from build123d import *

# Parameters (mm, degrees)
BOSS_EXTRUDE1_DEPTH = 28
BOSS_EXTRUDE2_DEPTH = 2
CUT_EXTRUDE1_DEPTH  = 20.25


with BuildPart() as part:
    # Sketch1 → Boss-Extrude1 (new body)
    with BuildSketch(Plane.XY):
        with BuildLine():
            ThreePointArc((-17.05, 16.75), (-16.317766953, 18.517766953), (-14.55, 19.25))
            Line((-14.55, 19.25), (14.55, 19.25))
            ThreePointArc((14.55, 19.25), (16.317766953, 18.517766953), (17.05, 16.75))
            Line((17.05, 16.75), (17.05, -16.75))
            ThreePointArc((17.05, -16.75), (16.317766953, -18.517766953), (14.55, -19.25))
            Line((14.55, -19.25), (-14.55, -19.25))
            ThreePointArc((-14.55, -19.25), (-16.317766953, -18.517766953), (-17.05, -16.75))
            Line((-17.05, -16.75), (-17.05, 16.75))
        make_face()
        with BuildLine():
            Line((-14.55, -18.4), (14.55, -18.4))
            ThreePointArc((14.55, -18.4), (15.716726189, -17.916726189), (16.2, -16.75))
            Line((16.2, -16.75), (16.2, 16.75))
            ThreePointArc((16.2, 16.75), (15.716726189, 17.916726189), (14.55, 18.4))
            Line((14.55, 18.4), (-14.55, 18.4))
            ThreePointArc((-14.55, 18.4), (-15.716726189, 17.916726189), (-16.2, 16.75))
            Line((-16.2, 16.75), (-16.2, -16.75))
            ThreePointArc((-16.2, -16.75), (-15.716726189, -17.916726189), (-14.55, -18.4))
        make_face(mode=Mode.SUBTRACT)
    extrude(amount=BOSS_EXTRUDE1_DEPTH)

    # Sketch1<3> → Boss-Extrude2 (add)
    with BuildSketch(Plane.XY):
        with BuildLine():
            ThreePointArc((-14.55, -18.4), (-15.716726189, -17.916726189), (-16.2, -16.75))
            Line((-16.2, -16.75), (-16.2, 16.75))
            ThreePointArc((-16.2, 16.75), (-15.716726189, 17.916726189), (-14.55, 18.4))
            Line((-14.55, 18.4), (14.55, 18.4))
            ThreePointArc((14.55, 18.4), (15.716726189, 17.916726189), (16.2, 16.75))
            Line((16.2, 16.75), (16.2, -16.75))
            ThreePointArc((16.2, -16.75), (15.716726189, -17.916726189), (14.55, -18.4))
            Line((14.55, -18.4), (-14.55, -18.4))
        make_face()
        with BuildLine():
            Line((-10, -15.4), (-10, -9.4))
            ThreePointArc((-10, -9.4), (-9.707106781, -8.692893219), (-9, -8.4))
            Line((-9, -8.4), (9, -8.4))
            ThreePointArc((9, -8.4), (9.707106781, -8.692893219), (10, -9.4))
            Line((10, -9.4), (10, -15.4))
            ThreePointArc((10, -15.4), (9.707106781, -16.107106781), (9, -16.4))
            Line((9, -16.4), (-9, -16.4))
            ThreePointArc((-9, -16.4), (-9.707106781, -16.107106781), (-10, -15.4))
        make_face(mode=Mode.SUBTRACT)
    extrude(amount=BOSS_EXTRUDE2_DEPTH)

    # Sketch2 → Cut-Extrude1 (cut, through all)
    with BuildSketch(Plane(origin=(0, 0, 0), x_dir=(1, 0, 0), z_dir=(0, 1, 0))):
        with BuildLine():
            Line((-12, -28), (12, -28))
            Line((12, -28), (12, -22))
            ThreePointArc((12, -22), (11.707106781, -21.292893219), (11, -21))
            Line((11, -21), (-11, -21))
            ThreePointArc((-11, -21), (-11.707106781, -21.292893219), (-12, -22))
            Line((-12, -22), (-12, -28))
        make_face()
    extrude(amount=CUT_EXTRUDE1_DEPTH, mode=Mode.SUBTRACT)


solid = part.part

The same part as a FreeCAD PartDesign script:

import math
import FreeCAD as App
import Part
import Sketcher

V = App.Vector

doc = App.newDocument("Part")
params = doc.addObject("Spreadsheet::Sheet", "Params")
for row, (alias, value) in enumerate([
    ("sketch1_radius", "2.5 mm"),
    ("sketch1_radius2", "1.65 mm"),
    ("sketch1_width", "29.1 mm"),
    ("sketch1_height", "33.5 mm"),
    ("pad1_length", "28 mm"),
    ("sketch2_radius", "1 mm"),
    ("sketch2_width", "18 mm"),
    ("sketch2_height", "6 mm"),
    ("sketch2_radius2", "1.65 mm"),
    ("sketch2_width2", "29.1 mm"),
    ("pad2_length", "2 mm"),
    ("sketch3_radius", "1 mm"),
    ("sketch3_width", "24 mm"),
    ("sketch3_height", "6 mm"),
], start=1):
    params.set(f"A{row}", alias)
    params.set(f"B{row}", "=" + value)
    params.setAlias(f"B{row}", alias)

body = doc.addObject("PartDesign::Body", "Body")

sketch1 = body.newObject("Sketcher::SketchObject", "Sketch")
sketch1.AttachmentSupport = (doc.getObject("XY_Plane"), [""])
sketch1.MapMode = "FlatFace"
sketch1.addGeometry(Part.ArcOfCircle(Part.Circle(V(-14.6, 16.8, 0), V(0, 0, 1), 2.5), math.radians(90), math.radians(180)), False)
sketch1.addGeometry(Part.LineSegment(V(-17.1, 16.8, 0), V(-17.1, -16.8, 0)), False)
sketch1.addGeometry(Part.ArcOfCircle(Part.Circle(V(-14.6, -16.8, 0), V(0, 0, 1), 2.5), math.radians(180), math.radians(270)), False)
sketch1.addGeometry(Part.LineSegment(V(-14.6, -19.2, 0), V(14.6, -19.2, 0)), False)
sketch1.addGeometry(Part.ArcOfCircle(Part.Circle(V(14.6, -16.8, 0), V(0, 0, 1), 2.5), math.radians(-90), math.radians(0)), False)
sketch1.addGeometry(Part.LineSegment(V(17.1, -16.8, 0), V(17.1, 16.8, 0)), False)
sketch1.addGeometry(Part.ArcOfCircle(Part.Circle(V(14.6, 16.8, 0), V(0, 0, 1), 2.5), math.radians(0), math.radians(90)), False)
sketch1.addGeometry(Part.LineSegment(V(14.6, 19.2, 0), V(-14.6, 19.2, 0)), False)
sketch1.addGeometry(Part.ArcOfCircle(Part.Circle(V(-14.6, -16.8, 0), V(0, 0, 1), 1.6), math.radians(180), math.radians(270)), False)
sketch1.addGeometry(Part.LineSegment(V(-16.2, -16.8, 0), V(-16.2, 16.8, 0)), False)
sketch1.addGeometry(Part.ArcOfCircle(Part.Circle(V(-14.6, 16.8, 0), V(0, 0, 1), 1.6), math.radians(90), math.radians(180)), False)
sketch1.addGeometry(Part.LineSegment(V(-14.6, 18.4, 0), V(14.6, 18.4, 0)), False)
sketch1.addGeometry(Part.ArcOfCircle(Part.Circle(V(14.6, 16.8, 0), V(0, 0, 1), 1.6), math.radians(0), math.radians(90)), False)
sketch1.addGeometry(Part.LineSegment(V(16.2, 16.8, 0), V(16.2, -16.8, 0)), False)
sketch1.addGeometry(Part.ArcOfCircle(Part.Circle(V(14.6, -16.8, 0), V(0, 0, 1), 1.6), math.radians(-90), math.radians(0)), False)
sketch1.addGeometry(Part.LineSegment(V(14.6, -18.4, 0), V(-14.6, -18.4, 0)), False)
sketch1.addConstraint(Sketcher.Constraint("Tangent", 0, 2, 1, 1))
sketch1.addConstraint(Sketcher.Constraint("Tangent", 1, 2, 2, 1))
sketch1.addConstraint(Sketcher.Constraint("Tangent", 2, 2, 3, 1))
sketch1.addConstraint(Sketcher.Constraint("Tangent", 3, 2, 4, 1))
sketch1.addConstraint(Sketcher.Constraint("Tangent", 4, 2, 5, 1))
sketch1.addConstraint(Sketcher.Constraint("Tangent", 5, 2, 6, 1))
sketch1.addConstraint(Sketcher.Constraint("Tangent", 6, 2, 7, 1))
sketch1.addConstraint(Sketcher.Constraint("Tangent", 7, 2, 0, 1))
sketch1.addConstraint(Sketcher.Constraint("Tangent", 8, 1, 9, 1))
sketch1.addConstraint(Sketcher.Constraint("Tangent", 9, 2, 10, 2))
sketch1.addConstraint(Sketcher.Constraint("Tangent", 10, 1, 11, 1))
sketch1.addConstraint(Sketcher.Constraint("Tangent", 11, 2, 12, 2))
sketch1.addConstraint(Sketcher.Constraint("Tangent", 12, 1, 13, 1))
sketch1.addConstraint(Sketcher.Constraint("Tangent", 13, 2, 14, 2))
sketch1.addConstraint(Sketcher.Constraint("Tangent", 14, 1, 15, 1))
sketch1.addConstraint(Sketcher.Constraint("Tangent", 15, 2, 8, 2))
sketch1.addConstraint(Sketcher.Constraint("Vertical", 1))
sketch1.addConstraint(Sketcher.Constraint("Horizontal", 3))
sketch1.addConstraint(Sketcher.Constraint("Vertical", 5))
sketch1.addConstraint(Sketcher.Constraint("Horizontal", 7))
sketch1.addConstraint(Sketcher.Constraint("Vertical", 9))
sketch1.addConstraint(Sketcher.Constraint("Horizontal", 11))
sketch1.addConstraint(Sketcher.Constraint("Vertical", 13))
sketch1.addConstraint(Sketcher.Constraint("Horizontal", 15))
sketch1.addConstraint(Sketcher.Constraint("Coincident", 8, 3, 2, 3))
sketch1.addConstraint(Sketcher.Constraint("Coincident", 10, 3, 0, 3))
sketch1.addConstraint(Sketcher.Constraint("Coincident", 12, 3, 6, 3))
sketch1.addConstraint(Sketcher.Constraint("Equal", 0, 2))
sketch1.addConstraint(Sketcher.Constraint("Equal", 2, 4))
sketch1.addConstraint(Sketcher.Constraint("Equal", 4, 6))
sketch1.addConstraint(Sketcher.Constraint("Equal", 12, 14))
sketch1.addConstraint(Sketcher.Constraint("Symmetric", 0, 3, 4, 3, -1, 1))
sketch1.addConstraint(Sketcher.Constraint("Radius", 0, 2.5))
sketch1.addConstraint(Sketcher.Constraint("Radius", 8, 1.65))
sketch1.addConstraint(Sketcher.Constraint("DistanceX", 3, 1, 3, 2, 29.1))
sketch1.addConstraint(Sketcher.Constraint("DistanceY", 1, 2, 1, 1, 33.5))
sketch1.setExpression("Constraints[32]", "Params.sketch1_radius")
sketch1.setExpression("Constraints[33]", "Params.sketch1_radius2")
sketch1.setExpression("Constraints[34]", "Params.sketch1_width")
sketch1.setExpression("Constraints[35]", "Params.sketch1_height")
pad1 = body.newObject("PartDesign::Pad", "Pad")
pad1.Profile = sketch1
pad1.setExpression("Length", "Params.pad1_length")

sketch2 = body.newObject("Sketcher::SketchObject", "Sketch001")
sketch2.AttachmentSupport = (doc.getObject("XY_Plane"), [""])
sketch2.MapMode = "FlatFace"
sketch2.addGeometry(Part.ArcOfCircle(Part.Circle(V(-14.6, -16.8, 0), V(0, 0, 1), 1.6), math.radians(180), math.radians(270)), False)
sketch2.addGeometry(Part.LineSegment(V(-14.6, -18.4, 0), V(14.6, -18.4, 0)), False)
sketch2.addGeometry(Part.ArcOfCircle(Part.Circle(V(14.6, -16.8, 0), V(0, 0, 1), 1.6), math.radians(-90), math.radians(0)), False)
sketch2.addGeometry(Part.LineSegment(V(16.2, -16.8, 0), V(16.2, 16.8, 0)), False)
sketch2.addGeometry(Part.ArcOfCircle(Part.Circle(V(14.6, 16.8, 0), V(0, 0, 1), 1.6), math.radians(0), math.radians(90)), False)
sketch2.addGeometry(Part.LineSegment(V(14.6, 18.4, 0), V(-14.6, 18.4, 0)), False)
sketch2.addGeometry(Part.ArcOfCircle(Part.Circle(V(-14.6, 16.8, 0), V(0, 0, 1), 1.6), math.radians(90), math.radians(180)), False)
sketch2.addGeometry(Part.LineSegment(V(-16.2, 16.8, 0), V(-16.2, -16.8, 0)), False)
sketch2.addGeometry(Part.LineSegment(V(-10, -15.4, 0), V(-10, -9.4, 0)), False)
sketch2.addGeometry(Part.ArcOfCircle(Part.Circle(V(-9, -9.4, 0), V(0, 0, 1), 1), math.radians(90), math.radians(180)), False)
sketch2.addGeometry(Part.LineSegment(V(-9, -8.4, 0), V(9, -8.4, 0)), False)
sketch2.addGeometry(Part.ArcOfCircle(Part.Circle(V(9, -9.4, 0), V(0, 0, 1), 1), math.radians(0), math.radians(90)), False)
sketch2.addGeometry(Part.LineSegment(V(10, -9.4, 0), V(10, -15.4, 0)), False)
sketch2.addGeometry(Part.ArcOfCircle(Part.Circle(V(9, -15.4, 0), V(0, 0, 1), 1), math.radians(-90), math.radians(0)), False)
sketch2.addGeometry(Part.LineSegment(V(9, -16.4, 0), V(-9, -16.4, 0)), False)
sketch2.addGeometry(Part.ArcOfCircle(Part.Circle(V(-9, -15.4, 0), V(0, 0, 1), 1), math.radians(-180), math.radians(-90)), False)
sketch2.addConstraint(Sketcher.Constraint("Tangent", 0, 2, 1, 1))
sketch2.addConstraint(Sketcher.Constraint("Tangent", 1, 2, 2, 1))
sketch2.addConstraint(Sketcher.Constraint("Tangent", 2, 2, 3, 1))
sketch2.addConstraint(Sketcher.Constraint("Tangent", 3, 2, 4, 1))
sketch2.addConstraint(Sketcher.Constraint("Tangent", 4, 2, 5, 1))
sketch2.addConstraint(Sketcher.Constraint("Tangent", 5, 2, 6, 1))
sketch2.addConstraint(Sketcher.Constraint("Tangent", 6, 2, 7, 1))
sketch2.addConstraint(Sketcher.Constraint("Tangent", 7, 2, 0, 1))
sketch2.addConstraint(Sketcher.Constraint("Tangent", 8, 2, 9, 2))
sketch2.addConstraint(Sketcher.Constraint("Tangent", 9, 1, 10, 1))
sketch2.addConstraint(Sketcher.Constraint("Tangent", 10, 2, 11, 2))
sketch2.addConstraint(Sketcher.Constraint("Tangent", 11, 1, 12, 1))
sketch2.addConstraint(Sketcher.Constraint("Tangent", 12, 2, 13, 2))
sketch2.addConstraint(Sketcher.Constraint("Tangent", 13, 1, 14, 1))
sketch2.addConstraint(Sketcher.Constraint("Tangent", 14, 2, 15, 2))
sketch2.addConstraint(Sketcher.Constraint("Tangent", 15, 1, 8, 1))
sketch2.addConstraint(Sketcher.Constraint("Horizontal", 1))
sketch2.addConstraint(Sketcher.Constraint("Vertical", 3))
sketch2.addConstraint(Sketcher.Constraint("Horizontal", 5))
sketch2.addConstraint(Sketcher.Constraint("Vertical", 7))
sketch2.addConstraint(Sketcher.Constraint("Vertical", 8))
sketch2.addConstraint(Sketcher.Constraint("Horizontal", 10))
sketch2.addConstraint(Sketcher.Constraint("Vertical", 12))
sketch2.addConstraint(Sketcher.Constraint("Horizontal", 14))
sketch2.addConstraint(Sketcher.Constraint("Equal", 0, 2))
sketch2.addConstraint(Sketcher.Constraint("Equal", 2, 4))
sketch2.addConstraint(Sketcher.Constraint("Equal", 4, 6))
sketch2.addConstraint(Sketcher.Constraint("Equal", 9, 11))
sketch2.addConstraint(Sketcher.Constraint("Equal", 11, 13))
sketch2.addConstraint(Sketcher.Constraint("Equal", 13, 15))
sketch2.addConstraint(Sketcher.Constraint("Symmetric", 0, 3, 4, 3, -1, 1))
sketch2.addConstraint(Sketcher.Constraint("Radius", 9, 1.0))
sketch2.addConstraint(Sketcher.Constraint("DistanceX", 10, 1, 10, 2, 18.0))
sketch2.addConstraint(Sketcher.Constraint("DistanceY", 8, 1, 8, 2, 6.0))
sketch2.addConstraint(Sketcher.Constraint("Radius", 0, 1.65))
sketch2.addConstraint(Sketcher.Constraint("DistanceX", 1, 1, 1, 2, 29.1))
sketch2.addConstraint(Sketcher.Constraint("DistanceY", 3, 1, 3, 2, 33.5))
sketch2.addConstraint(Sketcher.Constraint("DistanceX", 9, 3, -1, 1, 9.0))
sketch2.addConstraint(Sketcher.Constraint("DistanceY", 0, 2, 15, 3, 3.0))
sketch2.setExpression("Constraints[31]", "Params.sketch2_radius")
sketch2.setExpression("Constraints[32]", "Params.sketch2_width")
sketch2.setExpression("Constraints[33]", "Params.sketch2_height")
sketch2.setExpression("Constraints[34]", "Params.sketch2_radius2")
sketch2.setExpression("Constraints[35]", "Params.sketch2_width2")
pad2 = body.newObject("PartDesign::Pad", "Pad001")
pad2.Profile = sketch2
pad2.setExpression("Length", "Params.pad2_length")

sketch3 = body.newObject("Sketcher::SketchObject", "Sketch002")
sketch3.AttachmentSupport = (doc.getObject("XZ_Plane"), [""])
sketch3.MapMode = "FlatFace"
sketch3.addGeometry(Part.LineSegment(V(-12, 28, 0), V(12, 28, 0)), False)
sketch3.addGeometry(Part.LineSegment(V(12, 28, 0), V(12, 22, 0)), False)
sketch3.addGeometry(Part.ArcOfCircle(Part.Circle(V(11, 22, 0), V(0, 0, 1), 1), math.radians(-90), math.radians(0)), False)
sketch3.addGeometry(Part.LineSegment(V(11, 21, 0), V(-11, 21, 0)), False)
sketch3.addGeometry(Part.ArcOfCircle(Part.Circle(V(-11, 22, 0), V(0, 0, 1), 1), math.radians(-180), math.radians(-90)), False)
sketch3.addGeometry(Part.LineSegment(V(-12, 22, 0), V(-12, 28, 0)), False)
sketch3.addConstraint(Sketcher.Constraint("Coincident", 0, 2, 1, 1))
sketch3.addConstraint(Sketcher.Constraint("Tangent", 1, 2, 2, 2))
sketch3.addConstraint(Sketcher.Constraint("Tangent", 2, 1, 3, 1))
sketch3.addConstraint(Sketcher.Constraint("Tangent", 3, 2, 4, 2))
sketch3.addConstraint(Sketcher.Constraint("Tangent", 4, 1, 5, 1))
sketch3.addConstraint(Sketcher.Constraint("Coincident", 5, 2, 0, 1))
sketch3.addConstraint(Sketcher.Constraint("Horizontal", 0))
sketch3.addConstraint(Sketcher.Constraint("Vertical", 1))
sketch3.addConstraint(Sketcher.Constraint("Horizontal", 3))
sketch3.addConstraint(Sketcher.Constraint("Vertical", 5))
sketch3.addConstraint(Sketcher.Constraint("Equal", 2, 4))
sketch3.addConstraint(Sketcher.Constraint("Radius", 2, 1.0))
sketch3.addConstraint(Sketcher.Constraint("DistanceX", 0, 1, 0, 2, 24.0))
sketch3.addConstraint(Sketcher.Constraint("DistanceY", 1, 2, 1, 1, 6.0))
sketch3.addConstraint(Sketcher.Constraint("DistanceX", -1, 1, 2, 3, 11.0))
sketch3.addConstraint(Sketcher.Constraint("DistanceY", -1, 1, 2, 3, 22.0))
sketch3.setExpression("Constraints[11]", "Params.sketch3_radius")
sketch3.setExpression("Constraints[12]", "Params.sketch3_width")
sketch3.setExpression("Constraints[13]", "Params.sketch3_height")
pocket1 = body.newObject("PartDesign::Pocket", "Pocket")
pocket1.Profile = sketch3
pocket1.Type = "ThroughAll"

doc.recompute()
